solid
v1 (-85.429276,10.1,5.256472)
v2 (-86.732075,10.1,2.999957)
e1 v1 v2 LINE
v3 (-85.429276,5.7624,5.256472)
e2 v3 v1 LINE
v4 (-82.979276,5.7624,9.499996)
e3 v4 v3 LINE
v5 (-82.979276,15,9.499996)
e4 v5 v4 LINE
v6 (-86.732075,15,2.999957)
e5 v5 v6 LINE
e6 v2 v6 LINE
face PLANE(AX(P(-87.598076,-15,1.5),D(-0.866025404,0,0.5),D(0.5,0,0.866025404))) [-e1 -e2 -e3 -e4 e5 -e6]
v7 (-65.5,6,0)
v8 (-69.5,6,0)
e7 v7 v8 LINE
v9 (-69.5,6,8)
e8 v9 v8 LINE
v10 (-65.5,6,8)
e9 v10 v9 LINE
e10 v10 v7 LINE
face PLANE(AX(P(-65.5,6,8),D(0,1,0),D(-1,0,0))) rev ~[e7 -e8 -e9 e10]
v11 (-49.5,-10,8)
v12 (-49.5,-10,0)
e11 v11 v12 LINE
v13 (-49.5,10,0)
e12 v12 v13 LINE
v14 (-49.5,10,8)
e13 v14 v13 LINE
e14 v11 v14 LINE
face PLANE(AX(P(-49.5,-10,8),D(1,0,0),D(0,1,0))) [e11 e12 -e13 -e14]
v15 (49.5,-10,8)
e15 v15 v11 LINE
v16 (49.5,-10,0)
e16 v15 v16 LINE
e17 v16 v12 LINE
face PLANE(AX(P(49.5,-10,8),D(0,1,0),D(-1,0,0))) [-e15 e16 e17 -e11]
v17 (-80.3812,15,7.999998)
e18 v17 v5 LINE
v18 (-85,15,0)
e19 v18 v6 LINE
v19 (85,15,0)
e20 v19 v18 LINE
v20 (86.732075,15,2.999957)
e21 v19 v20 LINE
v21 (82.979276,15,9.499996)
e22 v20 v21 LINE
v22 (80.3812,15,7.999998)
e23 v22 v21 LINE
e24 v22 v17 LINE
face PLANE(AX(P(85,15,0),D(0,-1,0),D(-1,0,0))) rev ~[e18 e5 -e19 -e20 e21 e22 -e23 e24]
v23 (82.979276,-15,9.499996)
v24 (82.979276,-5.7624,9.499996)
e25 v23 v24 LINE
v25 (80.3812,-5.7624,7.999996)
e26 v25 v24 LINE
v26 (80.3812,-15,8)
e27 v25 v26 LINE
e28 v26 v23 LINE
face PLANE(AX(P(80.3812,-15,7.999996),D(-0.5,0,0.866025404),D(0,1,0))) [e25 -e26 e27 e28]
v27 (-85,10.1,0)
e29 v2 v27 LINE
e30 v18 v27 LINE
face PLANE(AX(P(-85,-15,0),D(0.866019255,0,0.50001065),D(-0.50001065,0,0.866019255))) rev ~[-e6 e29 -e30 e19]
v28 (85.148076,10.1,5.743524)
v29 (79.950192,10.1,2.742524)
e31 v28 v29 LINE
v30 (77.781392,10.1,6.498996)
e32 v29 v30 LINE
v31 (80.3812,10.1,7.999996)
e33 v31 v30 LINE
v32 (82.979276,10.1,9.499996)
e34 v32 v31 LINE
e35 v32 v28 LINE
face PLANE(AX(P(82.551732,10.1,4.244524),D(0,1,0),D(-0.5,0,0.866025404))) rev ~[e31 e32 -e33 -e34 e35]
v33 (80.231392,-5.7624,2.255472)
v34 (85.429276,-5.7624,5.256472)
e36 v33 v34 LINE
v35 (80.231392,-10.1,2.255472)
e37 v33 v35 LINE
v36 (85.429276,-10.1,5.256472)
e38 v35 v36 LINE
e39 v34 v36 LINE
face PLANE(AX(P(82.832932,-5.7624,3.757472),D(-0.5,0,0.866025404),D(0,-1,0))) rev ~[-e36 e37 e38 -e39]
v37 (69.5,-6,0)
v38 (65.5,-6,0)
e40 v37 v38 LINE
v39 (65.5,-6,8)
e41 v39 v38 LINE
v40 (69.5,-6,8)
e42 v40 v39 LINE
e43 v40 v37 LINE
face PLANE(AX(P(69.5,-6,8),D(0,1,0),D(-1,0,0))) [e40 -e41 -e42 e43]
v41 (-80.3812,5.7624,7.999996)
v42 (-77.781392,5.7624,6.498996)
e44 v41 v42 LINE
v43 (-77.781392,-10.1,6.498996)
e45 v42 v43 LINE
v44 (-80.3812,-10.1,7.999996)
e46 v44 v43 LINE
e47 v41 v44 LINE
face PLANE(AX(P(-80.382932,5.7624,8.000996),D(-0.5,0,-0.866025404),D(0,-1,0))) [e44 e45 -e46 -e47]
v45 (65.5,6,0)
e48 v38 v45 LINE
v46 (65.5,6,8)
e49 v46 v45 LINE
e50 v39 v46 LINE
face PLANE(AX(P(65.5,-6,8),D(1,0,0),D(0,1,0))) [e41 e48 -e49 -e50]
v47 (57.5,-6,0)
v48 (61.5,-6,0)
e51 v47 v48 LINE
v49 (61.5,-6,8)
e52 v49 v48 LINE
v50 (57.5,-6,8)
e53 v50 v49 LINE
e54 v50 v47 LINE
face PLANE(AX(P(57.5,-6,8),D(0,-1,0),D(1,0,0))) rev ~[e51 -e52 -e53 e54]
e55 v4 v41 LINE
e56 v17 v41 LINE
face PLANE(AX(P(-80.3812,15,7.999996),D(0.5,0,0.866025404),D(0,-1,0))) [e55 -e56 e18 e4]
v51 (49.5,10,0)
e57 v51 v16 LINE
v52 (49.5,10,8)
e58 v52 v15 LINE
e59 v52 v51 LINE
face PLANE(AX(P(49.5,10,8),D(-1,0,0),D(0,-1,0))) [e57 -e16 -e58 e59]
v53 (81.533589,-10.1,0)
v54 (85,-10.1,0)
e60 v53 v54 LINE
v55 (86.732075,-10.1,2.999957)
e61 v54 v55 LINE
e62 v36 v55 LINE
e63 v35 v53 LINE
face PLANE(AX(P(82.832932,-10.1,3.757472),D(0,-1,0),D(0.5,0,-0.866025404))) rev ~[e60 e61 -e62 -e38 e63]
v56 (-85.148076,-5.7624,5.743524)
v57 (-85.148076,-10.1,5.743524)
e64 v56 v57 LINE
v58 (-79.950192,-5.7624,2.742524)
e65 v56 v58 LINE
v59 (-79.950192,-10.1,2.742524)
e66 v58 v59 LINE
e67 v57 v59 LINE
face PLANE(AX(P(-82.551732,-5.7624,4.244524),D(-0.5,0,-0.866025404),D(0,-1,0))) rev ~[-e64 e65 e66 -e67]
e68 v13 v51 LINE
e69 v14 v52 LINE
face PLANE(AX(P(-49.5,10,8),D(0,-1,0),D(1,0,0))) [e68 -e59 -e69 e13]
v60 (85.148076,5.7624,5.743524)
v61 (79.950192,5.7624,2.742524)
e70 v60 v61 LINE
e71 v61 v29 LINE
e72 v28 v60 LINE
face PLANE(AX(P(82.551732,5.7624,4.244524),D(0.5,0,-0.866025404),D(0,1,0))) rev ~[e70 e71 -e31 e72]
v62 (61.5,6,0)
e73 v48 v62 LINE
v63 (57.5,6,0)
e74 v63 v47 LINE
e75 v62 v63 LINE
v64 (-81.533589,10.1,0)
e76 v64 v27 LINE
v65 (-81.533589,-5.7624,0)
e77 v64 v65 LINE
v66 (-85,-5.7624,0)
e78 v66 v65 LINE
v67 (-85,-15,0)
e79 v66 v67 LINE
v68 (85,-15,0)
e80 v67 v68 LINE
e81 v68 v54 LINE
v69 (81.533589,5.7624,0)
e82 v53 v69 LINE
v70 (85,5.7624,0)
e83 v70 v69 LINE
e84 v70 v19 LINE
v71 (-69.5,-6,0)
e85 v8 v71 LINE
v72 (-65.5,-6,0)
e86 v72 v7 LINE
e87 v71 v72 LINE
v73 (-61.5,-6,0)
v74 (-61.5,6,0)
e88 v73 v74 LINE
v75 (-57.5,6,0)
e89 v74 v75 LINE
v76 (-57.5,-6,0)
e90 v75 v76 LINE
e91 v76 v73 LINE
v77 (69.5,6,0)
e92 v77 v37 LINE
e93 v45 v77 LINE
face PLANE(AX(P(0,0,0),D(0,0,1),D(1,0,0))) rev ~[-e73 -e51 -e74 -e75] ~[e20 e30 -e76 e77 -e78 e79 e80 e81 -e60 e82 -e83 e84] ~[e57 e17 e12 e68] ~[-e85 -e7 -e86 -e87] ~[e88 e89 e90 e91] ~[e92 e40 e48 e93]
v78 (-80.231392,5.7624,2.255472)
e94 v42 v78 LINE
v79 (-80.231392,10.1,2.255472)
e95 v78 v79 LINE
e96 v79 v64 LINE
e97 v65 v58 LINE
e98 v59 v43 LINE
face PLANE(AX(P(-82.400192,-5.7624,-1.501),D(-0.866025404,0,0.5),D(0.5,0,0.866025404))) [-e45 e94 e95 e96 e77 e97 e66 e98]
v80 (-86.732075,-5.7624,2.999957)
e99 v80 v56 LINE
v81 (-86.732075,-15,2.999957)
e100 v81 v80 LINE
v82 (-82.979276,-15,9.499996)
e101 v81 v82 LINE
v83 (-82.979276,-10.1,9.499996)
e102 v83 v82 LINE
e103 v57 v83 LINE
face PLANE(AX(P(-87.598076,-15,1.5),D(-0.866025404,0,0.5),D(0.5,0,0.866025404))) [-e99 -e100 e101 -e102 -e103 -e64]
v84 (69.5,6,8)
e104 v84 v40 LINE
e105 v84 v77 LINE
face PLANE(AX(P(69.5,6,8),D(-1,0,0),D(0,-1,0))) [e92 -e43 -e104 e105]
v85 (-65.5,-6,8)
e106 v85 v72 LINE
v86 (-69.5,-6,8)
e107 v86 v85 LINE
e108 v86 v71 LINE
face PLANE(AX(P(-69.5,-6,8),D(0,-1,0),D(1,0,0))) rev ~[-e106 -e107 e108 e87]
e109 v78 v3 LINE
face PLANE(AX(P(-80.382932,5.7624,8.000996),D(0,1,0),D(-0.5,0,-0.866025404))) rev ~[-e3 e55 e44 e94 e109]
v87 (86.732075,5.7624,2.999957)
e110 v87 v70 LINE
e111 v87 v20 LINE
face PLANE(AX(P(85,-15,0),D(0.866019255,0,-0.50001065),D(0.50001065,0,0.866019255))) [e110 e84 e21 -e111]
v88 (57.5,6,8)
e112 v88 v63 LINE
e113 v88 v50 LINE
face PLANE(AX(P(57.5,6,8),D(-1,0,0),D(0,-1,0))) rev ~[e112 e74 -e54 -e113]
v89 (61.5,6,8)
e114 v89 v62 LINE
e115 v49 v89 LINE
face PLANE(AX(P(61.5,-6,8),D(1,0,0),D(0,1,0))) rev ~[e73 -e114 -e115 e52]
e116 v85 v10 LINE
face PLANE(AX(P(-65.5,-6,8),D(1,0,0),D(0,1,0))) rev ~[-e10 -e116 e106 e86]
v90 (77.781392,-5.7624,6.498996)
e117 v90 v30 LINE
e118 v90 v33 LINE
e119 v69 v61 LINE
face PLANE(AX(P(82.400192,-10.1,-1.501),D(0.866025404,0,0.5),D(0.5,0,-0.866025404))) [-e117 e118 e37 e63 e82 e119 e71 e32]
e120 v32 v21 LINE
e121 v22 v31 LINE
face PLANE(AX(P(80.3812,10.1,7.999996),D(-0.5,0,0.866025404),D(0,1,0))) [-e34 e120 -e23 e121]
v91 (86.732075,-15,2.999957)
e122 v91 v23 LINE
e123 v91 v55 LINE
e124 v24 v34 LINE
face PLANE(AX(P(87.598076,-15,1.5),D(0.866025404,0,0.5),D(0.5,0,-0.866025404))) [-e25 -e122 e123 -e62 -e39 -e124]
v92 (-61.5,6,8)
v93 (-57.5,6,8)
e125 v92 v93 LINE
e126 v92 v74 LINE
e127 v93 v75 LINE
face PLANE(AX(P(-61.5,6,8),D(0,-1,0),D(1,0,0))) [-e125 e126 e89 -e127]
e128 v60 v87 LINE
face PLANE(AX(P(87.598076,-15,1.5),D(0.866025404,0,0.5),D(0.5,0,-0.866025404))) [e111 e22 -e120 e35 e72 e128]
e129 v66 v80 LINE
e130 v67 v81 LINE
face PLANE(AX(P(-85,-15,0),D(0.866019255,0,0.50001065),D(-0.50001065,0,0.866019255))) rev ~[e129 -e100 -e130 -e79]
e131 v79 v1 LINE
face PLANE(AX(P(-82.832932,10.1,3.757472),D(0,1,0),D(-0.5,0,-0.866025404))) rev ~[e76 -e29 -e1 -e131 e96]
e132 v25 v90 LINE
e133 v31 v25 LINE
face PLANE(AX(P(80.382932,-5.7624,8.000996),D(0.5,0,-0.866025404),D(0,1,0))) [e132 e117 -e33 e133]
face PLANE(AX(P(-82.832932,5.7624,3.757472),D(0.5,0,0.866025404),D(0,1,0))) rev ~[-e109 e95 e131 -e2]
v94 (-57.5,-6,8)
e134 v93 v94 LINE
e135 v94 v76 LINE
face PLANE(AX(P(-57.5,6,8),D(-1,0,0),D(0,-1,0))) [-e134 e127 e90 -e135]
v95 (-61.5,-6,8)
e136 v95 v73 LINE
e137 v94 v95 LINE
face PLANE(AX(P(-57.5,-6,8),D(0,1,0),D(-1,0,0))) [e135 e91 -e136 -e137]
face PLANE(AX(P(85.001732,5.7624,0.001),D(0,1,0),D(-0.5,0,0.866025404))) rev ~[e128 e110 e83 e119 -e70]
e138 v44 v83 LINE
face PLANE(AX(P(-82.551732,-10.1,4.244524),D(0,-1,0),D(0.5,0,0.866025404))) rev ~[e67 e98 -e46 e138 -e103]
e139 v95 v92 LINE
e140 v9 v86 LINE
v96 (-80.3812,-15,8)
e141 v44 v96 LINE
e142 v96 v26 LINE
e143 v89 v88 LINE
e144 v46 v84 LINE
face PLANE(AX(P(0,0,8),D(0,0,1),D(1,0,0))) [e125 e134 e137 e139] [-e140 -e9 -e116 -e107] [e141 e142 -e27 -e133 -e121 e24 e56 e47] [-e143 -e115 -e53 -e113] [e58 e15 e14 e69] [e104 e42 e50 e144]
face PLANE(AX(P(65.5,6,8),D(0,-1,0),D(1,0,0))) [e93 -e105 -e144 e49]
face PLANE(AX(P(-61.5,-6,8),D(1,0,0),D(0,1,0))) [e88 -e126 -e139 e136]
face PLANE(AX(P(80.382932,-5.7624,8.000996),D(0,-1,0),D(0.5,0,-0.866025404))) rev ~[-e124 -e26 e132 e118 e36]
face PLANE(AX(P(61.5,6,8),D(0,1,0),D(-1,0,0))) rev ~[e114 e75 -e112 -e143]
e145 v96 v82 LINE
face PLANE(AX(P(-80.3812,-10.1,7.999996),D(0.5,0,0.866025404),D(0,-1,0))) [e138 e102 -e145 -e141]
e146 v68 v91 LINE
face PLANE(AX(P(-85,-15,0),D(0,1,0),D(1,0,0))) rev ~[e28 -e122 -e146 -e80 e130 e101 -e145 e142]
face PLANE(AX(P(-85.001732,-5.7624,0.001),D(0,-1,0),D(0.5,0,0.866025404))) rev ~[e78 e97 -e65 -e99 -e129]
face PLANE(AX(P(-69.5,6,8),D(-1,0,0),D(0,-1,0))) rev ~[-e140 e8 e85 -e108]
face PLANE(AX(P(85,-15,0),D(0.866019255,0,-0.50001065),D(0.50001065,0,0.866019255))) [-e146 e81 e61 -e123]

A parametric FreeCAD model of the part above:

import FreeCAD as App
import Part
import Sketcher
from FreeCAD import Vector
Q = App.Units.Quantity


def add_polygon(sketch, points):
    """Adds a closed chain of lines whose ends are joined by coincident constraints."""
    first, n = sketch.GeometryCount, len(points)
    for a, b in zip(points, points[1:] + points[:1]):
        sketch.addGeometry(Part.LineSegment(App.Vector(*a, 0), App.Vector(*b, 0)), False)
    for i in range(n):
        sketch.addConstraint(Sketcher.Constraint("Coincident", first + i, 2, first + (i + 1) % n, 1))

doc = App.newDocument("Part")
params = doc.addObject("Spreadsheet::Sheet", "Params")
for row, (alias, value) in enumerate([
    ("sketch1_width", "170 mm"),
    ("sketch1_height", "30 mm"),
    ("pad1_length", "8 mm"),
    ("sketch2_height", "8 mm"),
    ("sketch3_width", "4.9 mm"),
    ("pad2_length", "3 mm"),
    ("sketch4_width", "4.9 mm"),
    ("pocket2_length", "3 mm"),
    ("sketch5_width", "4.9 mm"),
    ("pad3_length", "3 mm"),
    ("sketch6_width", "4.9 mm"),
    ("pocket3_length", "3 mm"),
    ("sketch7_length", "3 mm"),
    ("sketch8_width", "99 mm"),
    ("sketch8_width2", "4 mm"),
    ("sketch8_height", "20 mm"),
    ("sketch8_height2", "12 mm"),
], start=1):
    params.set(f"A{row}", alias)
    params.set(f"B{row}", "=" + value)
    params.setAlias(f"B{row}", alias)

body = doc.addObject("PartDesign::Body", "Body")

sketch1 = body.newObject("Sketcher::SketchObject", "Sketch")
sketch1.AttachmentSupport = (doc.getObject("XY_Plane"), [""])
sketch1.MapMode = "FlatFace"
add_polygon(sketch1, [(-85, 15), (-85, -15), (85, -15), (85, 15)])
sketch1.addConstraint([
    Sketcher.Constraint("Vertical", 0),
    Sketcher.Constraint("Horizontal", 1),
    Sketcher.Constraint("Vertical", 2),
    Sketcher.Constraint("Horizontal", 3),
    Sketcher.Constraint("Symmetric", 0, 2, 2, 2, -1, 1),
    Sketcher.Constraint("DistanceX", 1, 1, 1, 2, Q("170 mm")),
    Sketcher.Constraint("DistanceY", 0, 2, 0, 1, Q("30 mm")),
])
sketch1.setExpression("Constraints[9]", "Params.sketch1_width")
sketch1.setExpression("Constraints[10]", "Params.sketch1_height")
pad1 = body.newObject("PartDesign::Pad", "Pad")
pad1.Profile = sketch1
pad1.setExpression("Length", "Params.pad1_length")

sketch2 = body.newObject("Sketcher::SketchObject", "Sketch001")
sketch2.AttachmentSupport = (doc.getObject("XZ_Plane"), [""])
sketch2.MapMode = "FlatFace"
sketch2.AttachmentOffset = App.Placement(Vector(0, 0, -15), App.Rotation())
add_polygon(sketch2, [(-85, 0), (-85, 8), (-80.3812, 8)])
add_polygon(sketch2, [(80.3812, 8), (85, 8), (85, 0)])
sketch2.addConstraint([
    Sketcher.Constraint("Vertical", 0),
    Sketcher.Constraint("Horizontal", 1),
    Sketcher.Constraint("Horizontal", 3),
    Sketcher.Constraint("Vertical", 4),
    Sketcher.Constraint("Symmetric", 2, 2, 4, 2, -1, 1),
    Sketcher.Constraint("Symmetric", 1, 2, 5, 2, -2),
    Sketcher.Constraint("PointOnObject", 2, 2, -1),
    Sketcher.Constraint("DistanceY", 0, 1, 0, 2, Q("8 mm")),
    Sketcher.Constraint("Angle", 2, Q("-120 deg")),
    Sketcher.Constraint("DistanceX", 0, 2, -1, 1, Q("85 mm")),
])
sketch2.setExpression("Constraints[13]", "Params.sketch2_height")
pocket1 = body.newObject("PartDesign::Pocket", "Pocket")
pocket1.Profile = sketch2
pocket1.Type = "ThroughAll"
pocket1.Reversed = True

sketch3 = body.newObject("Sketcher::SketchObject", "Sketch002")
sketch3.Placement = App.Placement(Vector(-85, -15, 0), App.Rotation(Vector(0.5, 0, 0.866025404), Vector(0, 1, 0), Vector(-0.866025404, 0, 0.5), "ZXY"))
add_polygon(sketch3, [(9.2376, 20.7624), (9.2376, 30), (0, 30), (0, 25.1), (4.3376, 25.1), (4.3376, 20.7624)])
add_polygon(sketch3, [(9.2376, 0), (9.2376, 4.9), (4.9, 4.9), (4.9, 9.2376), (0, 9.2376), (0, 0)])
sketch3.addConstraint([
    Sketcher.Constraint("Vertical", 0),
    Sketcher.Constraint("Horizontal", 1),
    Sketcher.Constraint("Vertical", 2),
    Sketcher.Constraint("Horizontal", 3),
    Sketcher.Constraint("Vertical", 4),
    Sketcher.Constraint("Horizontal", 5),
    Sketcher.Constraint("Vertical", 6),
    Sketcher.Constraint("Horizontal", 7),
    Sketcher.Constraint("Vertical", 8),
    Sketcher.Constraint("Horizontal", 9),
    Sketcher.Constraint("Vertical", 10),
    Sketcher.Constraint("Horizontal", 11),
    Sketcher.Constraint("Coincident", 10, 2, -1, 1),
    Sketcher.Constraint("PointOnObject", 1, 2, -2),
    Sketcher.Constraint("Vertical", 5, 2, 6, 2),
    Sketcher.Constraint("Equal", 3, 7),
    Sketcher.Constraint("Equal", 11, 0),
    Sketcher.Constraint("Equal", 9, 2),
    Sketcher.Constraint("Equal", 2, 6),
    Sketcher.Constraint("Equal", 4, 8),
    Sketcher.Constraint("DistanceX", 5, 1, 5, 2, Q("4.9 mm")),
    Sketcher.Constraint("DistanceY", -1, 1, 0, 2, Q("30 mm")),
    Sketcher.Constraint("DistanceX", 1, 2, 1, 1, Q("9.2376 mm")),
])
sketch3.setExpression("Constraints[32]", "Params.sketch3_width")
pad2 = body.newObject("PartDesign::Pad", "Pad001")
pad2.Profile = sketch3
pad2.setExpression("Length", "Params.pad2_length")

sketch4 = body.newObject("Sketcher::SketchObject", "Sketch003")
sketch4.Placement = App.Placement(Vector(-85, -5.7624, 0), App.Rotation(Vector(0.5, 0, 0.866025404), Vector(0, 1, 0), Vector(-0.866025404, 0, 0.5), "ZXY"))
add_polygon(sketch4, [(4.9, 0), (4.9, -4.3376), (9.2376, -4.3376), (9.2376, 11.5248), (4.3376, 11.5248), (4.3376, 15.8624), (0, 15.8624), (0, 0)])
sketch4.addConstraint([
    Sketcher.Constraint("Vertical", 0),
    Sketcher.Constraint("Horizontal", 1),
    Sketcher.Constraint("Vertical", 2),
    Sketcher.Constraint("Horizontal", 3),
    Sketcher.Constraint("Vertical", 4),
    Sketcher.Constraint("Horizontal", 5),
    Sketcher.Constraint("Vertical", 6),
    Sketcher.Constraint("Horizontal", 7),
    Sketcher.Constraint("Coincident", 6, 2, -1, 1),
    Sketcher.Constraint("Equal", 1, 5),
    Sketcher.Constraint("Equal", 5, 0),
    Sketcher.Constraint("Equal", 0, 4),
    Sketcher.Constraint("DistanceX", 3, 2, 3, 1, Q("4.9 mm")),
    Sketcher.Constraint("DistanceY", 0, 2, 4, 2, Q("20.2 mm")),
    Sketcher.Constraint("DistanceX", 1, 1, 1, 2, Q("4.3376 mm")),
])
sketch4.setExpression("Constraints[20]", "Params.sketch4_width")
pocket2 = body.newObject("PartDesign::Pocket", "Pocket001")
pocket2.Profile = sketch4
pocket2.setExpression("Length", "Params.pocket2_length")

sketch5 = body.newObject("Sketcher::SketchObject", "Sketch004")
sketch5.Placement = App.Placement(Vector(85, -15, 0), App.Rotation(Vector(0.5, 0, -0.866025404), Vector(0, 1, 0), Vector(0.866025404, 0, 0.5), "ZXY"))
add_polygon(sketch5, [(-4.9, 20.7624), (0, 20.7624), (0, 30), (-9.2376, 30), (-9.2376, 25.1), (-4.9, 25.1)])
add_polygon(sketch5, [(-9.2376, 0), (0, 0), (0, 4.9), (-4.3376, 4.9), (-4.3376, 9.2376), (-9.2376, 9.2376)])
sketch5.addConstraint([
    Sketcher.Constraint("Horizontal", 0),
    Sketcher.Constraint("Vertical", 1),
    Sketcher.Constraint("Horizontal", 2),
    Sketcher.Constraint("Vertical", 3),
    Sketcher.Constraint("Horizontal", 4),
    Sketcher.Constraint("Vertical", 5),
    Sketcher.Constraint("Horizontal", 6),
    Sketcher.Constraint("Vertical", 7),
    Sketcher.Constraint("Horizontal", 8),
    Sketcher.Constraint("Vertical", 9),
    Sketcher.Constraint("Horizontal", 10),
    Sketcher.Constraint("Vertical", 11),
    Sketcher.Constraint("Coincident", 6, 2, -1, 1),
    Sketcher.Constraint("PointOnObject", 0, 2, -2),
    Sketcher.Constraint("Vertical", 3, 2, 10, 2),
    Sketcher.Constraint("Equal", 4, 8),
    Sketcher.Constraint("Equal", 6, 1),
    Sketcher.Constraint("Equal", 10, 3),
    Sketcher.Constraint("Equal", 3, 7),
    Sketcher.Constraint("Equal", 5, 9),
    Sketcher.Constraint("DistanceX", 0, 1, 0, 2, Q("4.9 mm")),
    Sketcher.Constraint("DistanceY", -1, 1, 1, 2, Q("30 mm")),
    Sketcher.Constraint("DistanceX", 2, 2, 2, 1, Q("9.2376 mm")),
])
sketch5.setExpression("Constraints[32]", "Params.sketch5_width")
pad3 = body.newObject("PartDesign::Pad", "Pad002")
pad3.Profile = sketch5
pad3.setExpression("Length", "Params.pad3_length")

sketch6 = body.newObject("Sketcher::SketchObject", "Sketch005")
sketch6.Placement = App.Placement(Vector(85, -10.1, 0), App.Rotation(Vector(0.5, 0, -0.866025404), Vector(0, 1, 0), Vector(0.866025404, 0, 0.5), "ZXY"))
add_polygon(sketch6, [(-4.9, 15.8624), (-4.9, 20.2), (-9.2376, 20.2), (-9.2376, 4.3376), (-4.3376, 4.3376), (-4.3376, 0), (0, 0), (0, 15.8624)])
sketch6.addConstraint([
    Sketcher.Constraint("Vertical", 0),
    Sketcher.Constraint("Horizontal", 1),
    Sketcher.Constraint("Vertical", 2),
    Sketcher.Constraint("Horizontal", 3),
    Sketcher.Constraint("Vertical", 4),
    Sketcher.Constraint("Horizontal", 5),
    Sketcher.Constraint("Vertical", 6),
    Sketcher.Constraint("Horizontal", 7),
    Sketcher.Constraint("Coincident", 5, 2, -1, 1),
    Sketcher.Constraint("Equal", 1, 5),
    Sketcher.Constraint("Equal", 5, 0),
    Sketcher.Constraint("Equal", 0, 4),
    Sketcher.Constraint("DistanceX", 3, 1, 3, 2, Q("4.9 mm")),
    Sketcher.Constraint("DistanceY", -1, 1, 0, 2, Q("20.2 mm")),
    Sketcher.Constraint("DistanceX", 1, 2, 1, 1, Q("4.3376 mm")),
])
sketch6.setExpression("Constraints[20]", "Params.sketch6_width")
pocket3 = body.newObject("PartDesign::Pocket", "Pocket002")
pocket3.Profile = sketch6
pocket3.setExpression("Length", "Params.pocket3_length")

sketch7 = body.newObject("Sketcher::SketchObject", "Sketch006")
sketch7.AttachmentSupport = (doc.getObject("XZ_Plane"), [""])
sketch7.MapMode = "FlatFace"
sketch7.AttachmentOffset = App.Placement(Vector(0, 0, 15), App.Rotation())
add_polygon(sketch7, [(-87.5981, 1.5), (-85, 0), (-86.7321, 3)])
add_polygon(sketch7, [(86.7321, 3), (85, 0), (87.5981, 1.5)])
sketch7.addConstraint([
    Sketcher.Constraint("Symmetric", 0, 2, 3, 2, -1, 1),
    Sketcher.Constraint("Symmetric", 2, 2, 4, 2, -2),
    Sketcher.Constraint("Symmetric", 1, 2, 5, 2, -2),
    Sketcher.Constraint("PointOnObject", 0, 2, -1),
    Sketcher.Constraint("Perpendicular", 0, 2),
    Sketcher.Constraint("Parallel", 2, 3),
    Sketcher.Constraint("Angle", 0, Q("-29.9998 deg")),
    Sketcher.Constraint("Distance", 0, Q("3 mm")),
    Sketcher.Constraint("DistanceX", 0, 2, -1, 1, Q("85 mm")),
])
sketch7.setExpression("Constraints[13]", "Params.sketch7_length")
pocket4 = body.newObject("PartDesign::Pocket", "Pocket003")
pocket4.Profile = sketch7
pocket4.Type = "ThroughAll"

sketch8 = body.newObject("Sketcher::SketchObject", "Sketch007")
sketch8.AttachmentSupport = (doc.getObject("XY_Plane"), [""])
sketch8.MapMode = "FlatFace"
sketch8.AttachmentOffset = App.Placement(Vector(0, 0, 8), App.Rotation())
add_polygon(sketch8, [(-49.5, -10), (49.5, -10), (49.5, 10), (-49.5, 10)])
add_polygon(sketch8, [(65.5, -6), (69.5, -6), (69.5, 6), (65.5, 6)])
add_polygon(sketch8, [(57.5, 6), (57.5, -6), (61.5, -6), (61.5, 6)])
add_polygon(sketch8, [(-69.5, 6), (-69.5, -6), (-65.5, -6), (-65.5, 6)])
add_polygon(sketch8, [(-61.5, -6), (-57.5, -6), (-57.5, 6), (-61.5, 6)])
sketch8.addConstraint([
    Sketcher.Constraint("Horizontal", 0),
    Sketcher.Constraint("Vertical", 1),
    Sketcher.Constraint("Horizontal", 2),
    Sketcher.Constraint("Vertical", 3),
    Sketcher.Constraint("Horizontal", 4),
    Sketcher.Constraint("Vertical", 5),
    Sketcher.Constraint("Horizontal", 6),
    Sketcher.Constraint("Vertical", 7),
    Sketcher.Constraint("Vertical", 8),
    Sketcher.Constraint("Horizontal", 9),
    Sketcher.Constraint("Vertical", 10),
    Sketcher.Constraint("Horizontal", 11),
    Sketcher.Constraint("Vertical", 12),
    Sketcher.Constraint("Horizontal", 13),
    Sketcher.Constraint("Vertical", 14),
    Sketcher.Constraint("Horizontal", 15),
    Sketcher.Constraint("Horizontal", 16),
    Sketcher.Constraint("Vertical", 17),
    Sketcher.Constraint("Horizontal", 18),
    Sketcher.Constraint("Vertical", 19),
    Sketcher.Constraint("Symmetric", 0, 2, 2, 2, -1, 1),
    Sketcher.Constraint("Symmetric", 5, 2, 12, 2, -1, 1),
    Sketcher.Constraint("Symmetric", 7, 2, 14, 2, -1, 1),
    Sketcher.Constraint("Symmetric", 11, 2, 16, 2, -1, 1),
    Sketcher.Constraint("Symmetric", 9, 2, 18, 2, -1, 1),
    Sketcher.Constraint("Horizontal", 7, 2, 8, 2),
    Sketcher.Constraint("Horizontal", 6, 2, 10, 2),
    Sketcher.Constraint("Horizontal", 9, 2, 12, 2),
    Sketcher.Constraint("Equal", 6, 9),
    Sketcher.Constraint("DistanceX", 0, 1, 0, 2, Q("99 mm")),
    Sketcher.Constraint("DistanceX", 4, 1, 4, 2, Q("4 mm")),
    Sketcher.Constraint("DistanceY", 1, 1, 1, 2, Q("20 mm")),
    Sketcher.Constraint("DistanceY", 5, 1, 5, 2, Q("12 mm")),
    Sketcher.Constraint("DistanceX", 0, 2, 4, 2, Q("20 mm")),
    Sketcher.Constraint("DistanceX", 8, 2, 4, 2, Q("12 mm")),
])
sketch8.setExpression("Constraints[49]", "Params.sketch8_width")
sketch8.setExpression("Constraints[50]", "Params.sketch8_width2")
sketch8.setExpression("Constraints[51]", "Params.sketch8_height")
sketch8.setExpression("Constraints[52]", "Params.sketch8_height2")
pocket5 = body.newObject("PartDesign::Pocket", "Pocket004")
pocket5.Profile = sketch8
pocket5.Type = "ThroughAll"

doc.recompute()
